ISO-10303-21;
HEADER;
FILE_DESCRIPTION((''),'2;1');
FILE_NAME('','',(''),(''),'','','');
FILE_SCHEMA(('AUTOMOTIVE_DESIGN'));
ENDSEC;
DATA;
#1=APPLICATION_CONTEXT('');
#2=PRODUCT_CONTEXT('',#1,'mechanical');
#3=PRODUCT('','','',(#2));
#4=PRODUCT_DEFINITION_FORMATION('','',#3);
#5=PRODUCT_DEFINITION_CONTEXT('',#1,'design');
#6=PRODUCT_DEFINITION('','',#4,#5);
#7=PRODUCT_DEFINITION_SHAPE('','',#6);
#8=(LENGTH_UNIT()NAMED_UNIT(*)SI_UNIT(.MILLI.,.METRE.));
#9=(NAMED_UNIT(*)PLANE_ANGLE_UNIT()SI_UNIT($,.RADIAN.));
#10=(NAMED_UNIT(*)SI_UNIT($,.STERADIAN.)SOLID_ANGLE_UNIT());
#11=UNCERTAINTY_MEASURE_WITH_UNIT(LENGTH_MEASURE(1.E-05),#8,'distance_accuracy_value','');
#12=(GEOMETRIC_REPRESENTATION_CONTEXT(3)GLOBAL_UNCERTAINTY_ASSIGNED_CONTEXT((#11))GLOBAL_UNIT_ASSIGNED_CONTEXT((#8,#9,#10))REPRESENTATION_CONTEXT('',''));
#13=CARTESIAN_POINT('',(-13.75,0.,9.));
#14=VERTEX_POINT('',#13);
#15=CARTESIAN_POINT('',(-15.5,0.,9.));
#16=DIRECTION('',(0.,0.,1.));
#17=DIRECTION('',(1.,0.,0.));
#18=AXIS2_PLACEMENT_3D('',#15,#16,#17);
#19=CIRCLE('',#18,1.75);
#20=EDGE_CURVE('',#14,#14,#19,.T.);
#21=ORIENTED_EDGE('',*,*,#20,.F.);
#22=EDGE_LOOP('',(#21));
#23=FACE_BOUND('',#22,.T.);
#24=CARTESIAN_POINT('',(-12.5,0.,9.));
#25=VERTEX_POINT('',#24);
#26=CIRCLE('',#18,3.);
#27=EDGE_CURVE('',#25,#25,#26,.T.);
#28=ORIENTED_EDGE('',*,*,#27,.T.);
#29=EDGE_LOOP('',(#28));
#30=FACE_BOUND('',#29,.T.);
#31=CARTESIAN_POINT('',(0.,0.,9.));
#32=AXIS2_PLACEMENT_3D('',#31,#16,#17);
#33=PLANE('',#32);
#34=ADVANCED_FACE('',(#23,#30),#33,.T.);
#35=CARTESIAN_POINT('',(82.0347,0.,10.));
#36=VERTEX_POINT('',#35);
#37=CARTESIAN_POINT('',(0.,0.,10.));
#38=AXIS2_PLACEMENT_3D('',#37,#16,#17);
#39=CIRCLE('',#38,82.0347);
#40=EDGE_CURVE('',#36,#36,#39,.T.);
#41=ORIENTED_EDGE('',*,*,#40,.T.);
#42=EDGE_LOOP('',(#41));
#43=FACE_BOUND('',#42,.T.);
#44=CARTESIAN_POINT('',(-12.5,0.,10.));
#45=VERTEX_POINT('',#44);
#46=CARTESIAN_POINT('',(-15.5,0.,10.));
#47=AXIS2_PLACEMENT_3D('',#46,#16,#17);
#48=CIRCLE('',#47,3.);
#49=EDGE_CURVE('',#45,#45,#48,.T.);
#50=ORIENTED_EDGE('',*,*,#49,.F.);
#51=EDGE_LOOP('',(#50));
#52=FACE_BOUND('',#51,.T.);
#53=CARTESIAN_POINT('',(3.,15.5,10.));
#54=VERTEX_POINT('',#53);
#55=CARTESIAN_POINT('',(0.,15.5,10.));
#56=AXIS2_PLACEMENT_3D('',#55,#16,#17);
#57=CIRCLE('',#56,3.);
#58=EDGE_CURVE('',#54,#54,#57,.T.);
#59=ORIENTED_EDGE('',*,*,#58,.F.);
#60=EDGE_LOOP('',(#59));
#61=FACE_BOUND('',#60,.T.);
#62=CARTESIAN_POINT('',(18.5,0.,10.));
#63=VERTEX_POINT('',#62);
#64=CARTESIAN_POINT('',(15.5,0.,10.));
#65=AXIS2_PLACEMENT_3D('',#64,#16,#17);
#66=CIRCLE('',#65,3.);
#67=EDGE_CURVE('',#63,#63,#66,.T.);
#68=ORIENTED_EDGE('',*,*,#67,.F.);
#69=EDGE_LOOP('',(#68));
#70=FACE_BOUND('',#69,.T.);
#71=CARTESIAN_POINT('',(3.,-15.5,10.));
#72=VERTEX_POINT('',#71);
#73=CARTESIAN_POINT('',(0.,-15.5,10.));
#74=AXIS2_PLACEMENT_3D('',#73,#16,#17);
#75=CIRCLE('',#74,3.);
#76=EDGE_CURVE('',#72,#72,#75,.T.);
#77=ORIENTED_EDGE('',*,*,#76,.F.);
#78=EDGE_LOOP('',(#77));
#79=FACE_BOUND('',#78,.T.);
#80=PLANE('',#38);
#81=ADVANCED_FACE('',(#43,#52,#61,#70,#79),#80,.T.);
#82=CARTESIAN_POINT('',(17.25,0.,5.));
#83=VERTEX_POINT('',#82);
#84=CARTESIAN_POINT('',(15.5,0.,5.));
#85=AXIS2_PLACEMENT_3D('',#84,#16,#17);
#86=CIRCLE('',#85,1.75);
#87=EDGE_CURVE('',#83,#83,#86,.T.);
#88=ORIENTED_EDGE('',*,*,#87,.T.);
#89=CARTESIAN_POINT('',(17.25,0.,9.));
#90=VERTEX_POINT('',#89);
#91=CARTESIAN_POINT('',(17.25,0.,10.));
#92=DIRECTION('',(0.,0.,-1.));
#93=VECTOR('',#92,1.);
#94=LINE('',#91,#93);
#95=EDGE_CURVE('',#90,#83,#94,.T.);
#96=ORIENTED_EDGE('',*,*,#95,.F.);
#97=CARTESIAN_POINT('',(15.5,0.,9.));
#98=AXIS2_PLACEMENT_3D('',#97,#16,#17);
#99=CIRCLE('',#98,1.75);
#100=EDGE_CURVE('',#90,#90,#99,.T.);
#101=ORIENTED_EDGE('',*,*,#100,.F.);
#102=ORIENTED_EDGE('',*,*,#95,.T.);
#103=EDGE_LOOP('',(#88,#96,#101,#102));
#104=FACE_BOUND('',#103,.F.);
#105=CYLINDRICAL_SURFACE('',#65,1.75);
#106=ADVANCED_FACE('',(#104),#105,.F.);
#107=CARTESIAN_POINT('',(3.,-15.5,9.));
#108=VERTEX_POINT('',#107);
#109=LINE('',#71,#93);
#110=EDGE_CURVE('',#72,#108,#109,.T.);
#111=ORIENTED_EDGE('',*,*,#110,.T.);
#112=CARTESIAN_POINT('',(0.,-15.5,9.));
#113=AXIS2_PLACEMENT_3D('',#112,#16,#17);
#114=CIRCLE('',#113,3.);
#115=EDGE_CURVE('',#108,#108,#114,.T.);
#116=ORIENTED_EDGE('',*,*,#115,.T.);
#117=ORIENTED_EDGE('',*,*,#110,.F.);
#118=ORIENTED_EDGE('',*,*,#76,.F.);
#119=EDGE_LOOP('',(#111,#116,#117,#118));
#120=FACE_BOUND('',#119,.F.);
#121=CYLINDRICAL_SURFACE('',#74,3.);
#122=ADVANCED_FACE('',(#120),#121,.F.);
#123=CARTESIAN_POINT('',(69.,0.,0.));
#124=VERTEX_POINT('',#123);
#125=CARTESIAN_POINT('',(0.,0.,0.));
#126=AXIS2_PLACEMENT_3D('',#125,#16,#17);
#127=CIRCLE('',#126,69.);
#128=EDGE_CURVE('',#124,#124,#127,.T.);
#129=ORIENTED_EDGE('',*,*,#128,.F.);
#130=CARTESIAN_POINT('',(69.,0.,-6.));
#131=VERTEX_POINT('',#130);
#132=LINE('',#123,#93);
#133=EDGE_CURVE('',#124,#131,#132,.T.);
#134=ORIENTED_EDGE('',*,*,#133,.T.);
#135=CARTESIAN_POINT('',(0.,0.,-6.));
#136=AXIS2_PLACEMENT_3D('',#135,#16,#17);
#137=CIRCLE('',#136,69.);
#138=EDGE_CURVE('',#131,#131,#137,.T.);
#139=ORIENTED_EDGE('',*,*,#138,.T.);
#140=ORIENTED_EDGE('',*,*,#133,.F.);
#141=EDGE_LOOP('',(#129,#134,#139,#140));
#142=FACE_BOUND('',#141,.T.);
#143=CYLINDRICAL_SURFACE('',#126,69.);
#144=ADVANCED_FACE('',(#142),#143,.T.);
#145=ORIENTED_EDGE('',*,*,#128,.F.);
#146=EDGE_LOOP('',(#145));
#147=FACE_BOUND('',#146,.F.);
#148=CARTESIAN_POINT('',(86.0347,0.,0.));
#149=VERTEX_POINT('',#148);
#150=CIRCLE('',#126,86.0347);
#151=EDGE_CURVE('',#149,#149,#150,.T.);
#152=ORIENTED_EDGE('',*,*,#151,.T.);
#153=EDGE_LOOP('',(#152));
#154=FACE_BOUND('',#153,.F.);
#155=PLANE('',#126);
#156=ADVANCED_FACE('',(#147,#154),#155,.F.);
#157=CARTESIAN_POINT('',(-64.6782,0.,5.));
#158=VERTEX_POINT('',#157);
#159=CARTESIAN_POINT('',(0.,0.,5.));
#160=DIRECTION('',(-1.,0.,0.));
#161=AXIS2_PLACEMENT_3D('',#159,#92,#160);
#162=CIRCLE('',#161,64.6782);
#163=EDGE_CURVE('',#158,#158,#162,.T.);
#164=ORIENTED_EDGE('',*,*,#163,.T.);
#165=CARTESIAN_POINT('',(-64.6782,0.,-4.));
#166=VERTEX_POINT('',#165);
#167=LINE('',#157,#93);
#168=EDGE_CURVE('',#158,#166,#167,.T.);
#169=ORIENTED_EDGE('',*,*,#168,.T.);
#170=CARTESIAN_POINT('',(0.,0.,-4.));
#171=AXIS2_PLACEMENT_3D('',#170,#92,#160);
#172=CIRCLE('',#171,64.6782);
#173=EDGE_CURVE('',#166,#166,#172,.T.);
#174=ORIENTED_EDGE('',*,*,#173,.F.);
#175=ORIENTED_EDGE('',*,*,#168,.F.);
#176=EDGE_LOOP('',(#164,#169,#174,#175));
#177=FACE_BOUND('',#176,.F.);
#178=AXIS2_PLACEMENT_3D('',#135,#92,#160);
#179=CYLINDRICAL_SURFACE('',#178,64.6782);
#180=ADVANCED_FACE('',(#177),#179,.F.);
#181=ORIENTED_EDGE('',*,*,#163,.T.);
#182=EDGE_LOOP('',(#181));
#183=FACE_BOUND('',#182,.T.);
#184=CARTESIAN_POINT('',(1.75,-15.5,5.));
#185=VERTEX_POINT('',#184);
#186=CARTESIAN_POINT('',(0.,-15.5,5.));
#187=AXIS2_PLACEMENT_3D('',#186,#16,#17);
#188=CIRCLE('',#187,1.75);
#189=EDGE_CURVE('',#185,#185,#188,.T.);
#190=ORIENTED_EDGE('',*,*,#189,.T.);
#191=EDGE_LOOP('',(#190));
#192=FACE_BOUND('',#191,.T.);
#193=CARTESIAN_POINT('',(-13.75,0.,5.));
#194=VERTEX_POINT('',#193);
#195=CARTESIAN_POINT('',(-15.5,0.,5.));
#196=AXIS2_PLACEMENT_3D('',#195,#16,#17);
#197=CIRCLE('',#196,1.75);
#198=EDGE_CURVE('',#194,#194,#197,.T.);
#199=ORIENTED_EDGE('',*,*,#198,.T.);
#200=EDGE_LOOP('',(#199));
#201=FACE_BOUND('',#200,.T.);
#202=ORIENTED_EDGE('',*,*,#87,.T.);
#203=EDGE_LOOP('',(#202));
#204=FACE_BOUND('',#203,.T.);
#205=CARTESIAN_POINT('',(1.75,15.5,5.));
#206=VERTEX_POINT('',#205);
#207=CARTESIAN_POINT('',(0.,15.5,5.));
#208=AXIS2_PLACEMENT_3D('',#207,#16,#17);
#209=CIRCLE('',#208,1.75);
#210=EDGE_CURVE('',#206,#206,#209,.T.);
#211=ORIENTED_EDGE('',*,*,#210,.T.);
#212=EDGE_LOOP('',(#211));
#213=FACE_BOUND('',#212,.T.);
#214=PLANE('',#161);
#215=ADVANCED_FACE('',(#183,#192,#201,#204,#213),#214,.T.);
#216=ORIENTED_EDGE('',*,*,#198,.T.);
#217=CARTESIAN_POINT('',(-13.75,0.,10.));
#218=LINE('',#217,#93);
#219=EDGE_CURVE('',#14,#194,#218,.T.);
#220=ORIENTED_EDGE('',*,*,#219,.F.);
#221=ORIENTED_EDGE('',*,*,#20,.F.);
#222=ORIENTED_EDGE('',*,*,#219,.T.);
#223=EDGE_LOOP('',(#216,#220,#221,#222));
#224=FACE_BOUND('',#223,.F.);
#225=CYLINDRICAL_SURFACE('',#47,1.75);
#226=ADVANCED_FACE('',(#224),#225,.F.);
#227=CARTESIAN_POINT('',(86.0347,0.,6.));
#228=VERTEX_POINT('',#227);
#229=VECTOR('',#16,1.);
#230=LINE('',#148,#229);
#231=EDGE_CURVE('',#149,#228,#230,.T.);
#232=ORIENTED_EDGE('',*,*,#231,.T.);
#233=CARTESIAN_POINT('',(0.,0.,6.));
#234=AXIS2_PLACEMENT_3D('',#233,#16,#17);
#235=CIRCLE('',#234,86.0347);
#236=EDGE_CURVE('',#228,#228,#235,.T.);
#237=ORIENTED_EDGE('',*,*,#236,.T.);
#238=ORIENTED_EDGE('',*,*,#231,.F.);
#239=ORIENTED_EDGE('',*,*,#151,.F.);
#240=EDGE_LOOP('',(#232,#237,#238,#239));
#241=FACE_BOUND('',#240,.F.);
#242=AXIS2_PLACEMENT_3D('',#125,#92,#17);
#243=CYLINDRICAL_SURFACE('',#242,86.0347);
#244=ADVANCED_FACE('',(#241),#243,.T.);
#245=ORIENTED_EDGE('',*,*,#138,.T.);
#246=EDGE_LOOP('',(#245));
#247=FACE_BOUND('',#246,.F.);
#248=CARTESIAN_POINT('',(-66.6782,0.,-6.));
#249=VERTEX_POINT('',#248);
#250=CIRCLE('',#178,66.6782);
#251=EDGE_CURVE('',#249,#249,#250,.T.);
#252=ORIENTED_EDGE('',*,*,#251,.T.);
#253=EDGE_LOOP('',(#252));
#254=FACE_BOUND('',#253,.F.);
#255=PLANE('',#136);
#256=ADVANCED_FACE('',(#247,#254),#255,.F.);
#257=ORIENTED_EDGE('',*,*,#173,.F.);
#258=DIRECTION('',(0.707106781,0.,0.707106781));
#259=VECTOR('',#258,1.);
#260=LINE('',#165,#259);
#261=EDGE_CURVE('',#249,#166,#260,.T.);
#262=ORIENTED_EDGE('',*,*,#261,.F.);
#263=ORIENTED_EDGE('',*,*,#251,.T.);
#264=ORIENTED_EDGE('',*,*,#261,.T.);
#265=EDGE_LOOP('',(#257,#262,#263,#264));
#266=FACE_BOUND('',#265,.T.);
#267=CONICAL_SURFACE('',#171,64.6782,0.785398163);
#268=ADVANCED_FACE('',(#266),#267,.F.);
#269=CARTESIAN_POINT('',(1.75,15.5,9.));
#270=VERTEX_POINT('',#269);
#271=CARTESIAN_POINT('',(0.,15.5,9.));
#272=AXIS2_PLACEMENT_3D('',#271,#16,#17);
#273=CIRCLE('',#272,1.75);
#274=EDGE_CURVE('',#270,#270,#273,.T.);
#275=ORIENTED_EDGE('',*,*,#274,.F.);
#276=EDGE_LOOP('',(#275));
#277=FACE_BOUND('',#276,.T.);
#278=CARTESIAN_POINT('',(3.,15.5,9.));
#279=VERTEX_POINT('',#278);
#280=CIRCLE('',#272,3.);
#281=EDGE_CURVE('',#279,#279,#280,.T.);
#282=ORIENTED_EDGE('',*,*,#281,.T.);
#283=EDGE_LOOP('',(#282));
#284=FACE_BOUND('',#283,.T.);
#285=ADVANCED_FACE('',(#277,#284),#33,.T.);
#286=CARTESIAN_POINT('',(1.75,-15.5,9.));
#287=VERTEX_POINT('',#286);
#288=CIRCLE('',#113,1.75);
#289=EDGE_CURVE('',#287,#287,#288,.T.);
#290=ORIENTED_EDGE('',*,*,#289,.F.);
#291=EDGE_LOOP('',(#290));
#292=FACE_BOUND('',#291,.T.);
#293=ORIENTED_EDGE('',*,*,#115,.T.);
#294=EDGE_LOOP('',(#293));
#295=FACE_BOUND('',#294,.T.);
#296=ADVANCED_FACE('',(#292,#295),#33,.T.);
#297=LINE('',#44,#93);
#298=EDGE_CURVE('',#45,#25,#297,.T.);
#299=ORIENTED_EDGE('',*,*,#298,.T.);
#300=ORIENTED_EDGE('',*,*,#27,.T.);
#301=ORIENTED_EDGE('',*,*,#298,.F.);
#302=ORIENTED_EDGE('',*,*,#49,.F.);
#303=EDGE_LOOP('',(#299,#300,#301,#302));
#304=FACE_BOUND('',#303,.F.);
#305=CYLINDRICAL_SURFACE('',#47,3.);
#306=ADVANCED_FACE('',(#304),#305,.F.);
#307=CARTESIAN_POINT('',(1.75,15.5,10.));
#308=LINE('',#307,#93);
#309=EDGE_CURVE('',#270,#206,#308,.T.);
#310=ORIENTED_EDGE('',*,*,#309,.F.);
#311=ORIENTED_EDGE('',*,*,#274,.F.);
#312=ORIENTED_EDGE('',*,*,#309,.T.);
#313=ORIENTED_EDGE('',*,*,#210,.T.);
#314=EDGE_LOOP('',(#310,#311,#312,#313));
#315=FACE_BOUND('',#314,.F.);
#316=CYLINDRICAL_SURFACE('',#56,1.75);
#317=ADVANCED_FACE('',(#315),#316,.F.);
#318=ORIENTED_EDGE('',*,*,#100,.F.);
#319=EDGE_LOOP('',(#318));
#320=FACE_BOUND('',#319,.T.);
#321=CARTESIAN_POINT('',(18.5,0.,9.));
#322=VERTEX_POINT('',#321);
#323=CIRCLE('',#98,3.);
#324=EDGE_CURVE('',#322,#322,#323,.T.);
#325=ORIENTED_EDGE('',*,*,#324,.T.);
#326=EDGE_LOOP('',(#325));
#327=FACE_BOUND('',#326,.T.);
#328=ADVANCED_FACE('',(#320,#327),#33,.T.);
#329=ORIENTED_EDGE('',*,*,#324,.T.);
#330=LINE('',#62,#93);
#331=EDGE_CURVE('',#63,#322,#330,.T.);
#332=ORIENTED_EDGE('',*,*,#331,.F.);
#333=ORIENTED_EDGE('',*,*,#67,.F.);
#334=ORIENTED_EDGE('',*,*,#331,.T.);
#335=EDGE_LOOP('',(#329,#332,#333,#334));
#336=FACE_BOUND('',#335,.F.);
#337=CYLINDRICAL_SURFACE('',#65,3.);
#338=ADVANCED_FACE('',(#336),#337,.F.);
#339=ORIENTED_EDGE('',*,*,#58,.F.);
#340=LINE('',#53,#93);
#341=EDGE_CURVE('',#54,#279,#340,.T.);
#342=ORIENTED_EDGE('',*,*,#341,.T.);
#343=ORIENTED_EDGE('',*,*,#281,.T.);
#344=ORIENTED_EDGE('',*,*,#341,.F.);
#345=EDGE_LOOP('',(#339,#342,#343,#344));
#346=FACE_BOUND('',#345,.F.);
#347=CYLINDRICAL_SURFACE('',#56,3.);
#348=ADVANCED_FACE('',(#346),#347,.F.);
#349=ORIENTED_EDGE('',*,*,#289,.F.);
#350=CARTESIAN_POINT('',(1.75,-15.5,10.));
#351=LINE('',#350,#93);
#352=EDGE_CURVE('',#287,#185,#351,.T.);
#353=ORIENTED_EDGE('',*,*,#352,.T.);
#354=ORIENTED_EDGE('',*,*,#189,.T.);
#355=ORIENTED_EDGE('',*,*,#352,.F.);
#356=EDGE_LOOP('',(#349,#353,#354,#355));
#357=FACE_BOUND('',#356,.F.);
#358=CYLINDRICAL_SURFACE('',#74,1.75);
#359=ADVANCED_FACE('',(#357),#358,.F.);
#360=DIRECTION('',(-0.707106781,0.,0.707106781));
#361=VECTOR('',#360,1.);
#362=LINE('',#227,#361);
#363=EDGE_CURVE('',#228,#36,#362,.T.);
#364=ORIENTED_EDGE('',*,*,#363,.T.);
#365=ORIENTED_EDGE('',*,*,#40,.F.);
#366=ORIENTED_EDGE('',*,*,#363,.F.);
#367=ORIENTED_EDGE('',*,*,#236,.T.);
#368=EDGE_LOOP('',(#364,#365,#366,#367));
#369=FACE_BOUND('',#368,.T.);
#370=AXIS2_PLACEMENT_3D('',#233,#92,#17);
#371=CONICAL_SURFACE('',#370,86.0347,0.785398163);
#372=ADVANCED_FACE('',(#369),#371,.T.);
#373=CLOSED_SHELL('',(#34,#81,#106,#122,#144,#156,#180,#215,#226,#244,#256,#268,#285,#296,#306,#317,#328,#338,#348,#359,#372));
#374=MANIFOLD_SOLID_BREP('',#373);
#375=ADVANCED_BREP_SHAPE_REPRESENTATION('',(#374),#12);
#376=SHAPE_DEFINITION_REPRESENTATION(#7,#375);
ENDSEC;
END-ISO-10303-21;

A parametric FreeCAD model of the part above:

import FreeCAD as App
import Part
import Sketcher
Q = App.Units.Quantity


def edges_at(feature, points):
    """Names of the edges that pass closest to the given points."""
    edges = feature.Shape.Edges
    near = lambda p: min(range(len(edges)), key=lambda i: edges[i].distToShape(Part.Vertex(*p))[0])
    return sorted({f"Edge{near(p) + 1}" for p in points})

doc = App.newDocument("Part")
body = doc.addObject("PartDesign::Body", "Body")

# Sketch on XY plane
sketch1 = body.newObject("Sketcher::SketchObject", "Sketch")
sketch1.AttachmentSupport = (doc.getObject("XY_Plane"), [""])
sketch1.MapMode = "FlatFace"
sketch1.addGeometry(Part.Circle(App.Vector(0, 0, 0), App.Vector(0, 0, 1), 69), False)
sketch1.addConstraint(Sketcher.Constraint("Coincident", 0, 3, -1, 1))
sketch1.addConstraint(Sketcher.Constraint("Diameter", 0, Q("138 mm")))
pad1 = body.newObject("PartDesign::Pad", "Pad")
pad1.Profile = sketch1
pad1.Length = 6
pad1.Reversed = True

# Sketch on XY plane
sketch2 = body.newObject("Sketcher::SketchObject", "Sketch001")
sketch2.AttachmentSupport = (doc.getObject("XY_Plane"), [""])
sketch2.MapMode = "FlatFace"
sketch2.addGeometry(Part.Circle(App.Vector(0, 0, 0), App.Vector(0, 0, 1), 86), False)
sketch2.addConstraint(Sketcher.Constraint("Coincident", 0, 3, -1, 1))
sketch2.addConstraint(Sketcher.Constraint("Diameter", 0, Q("172.0694 mm")))
pad2 = body.newObject("PartDesign::Pad", "Pad001")
pad2.Profile = sketch2
pad2.Length = 10

# Sketch on XY plane
sketch3 = body.newObject("Sketcher::SketchObject", "Sketch002")
sketch3.AttachmentSupport = (doc.getObject("XY_Plane"), [""])
sketch3.MapMode = "FlatFace"
sketch3.AttachmentOffset = App.Placement(App.Vector(0, 0, 10), App.Rotation())
sketch3.addGeometry(Part.Circle(App.Vector(0, 15.5, 0), App.Vector(0, 0, 1), 1.8), False)
sketch3.addGeometry(Part.Circle(App.Vector(-15.5, 0, 0), App.Vector(0, 0, 1), 1.8), False)
sketch3.addGeometry(Part.Circle(App.Vector(0, -15.5, 0), App.Vector(0, 0, 1), 1.8), False)
sketch3.addGeometry(Part.Circle(App.Vector(15.5, 0, 0), App.Vector(0, 0, 1), 1.8), False)
sketch3.addConstraint(Sketcher.Constraint("Equal", 0, 1))
sketch3.addConstraint(Sketcher.Constraint("Equal", 1, 2))
sketch3.addConstraint(Sketcher.Constraint("Equal", 2, 3))
sketch3.addConstraint(Sketcher.Constraint("Symmetric", 0, 3, 2, 3, -1, 1))
sketch3.addConstraint(Sketcher.Constraint("Symmetric", 1, 3, 3, 3, -1, 1))
sketch3.addConstraint(Sketcher.Constraint("PointOnObject", 0, 3, -2))
sketch3.addConstraint(Sketcher.Constraint("PointOnObject", 1, 3, -1))
sketch3.addConstraint(Sketcher.Constraint("Diameter", 0, Q("3.5 mm")))
sketch3.addConstraint(Sketcher.Constraint("DistanceY", 2, 3, 0, 3, Q("31 mm")))
sketch3.addConstraint(Sketcher.Constraint("DistanceX", 1, 3, 3, 3, Q("31 mm")))
pocket1 = body.newObject("PartDesign::Pocket", "Pocket")
pocket1.Profile = sketch3
pocket1.Type = "ThroughAll"

# Sketch on XY plane
sketch4 = body.newObject("Sketcher::SketchObject", "Sketch003")
sketch4.AttachmentSupport = (doc.getObject("XY_Plane"), [""])
sketch4.MapMode = "FlatFace"
sketch4.AttachmentOffset = App.Placement(App.Vector(0, 0, 10), App.Rotation())
sketch4.addGeometry(Part.Circle(App.Vector(15.5, 0, 0), App.Vector(0, 0, 1), 3), False)
sketch4.addGeometry(Part.Circle(App.Vector(-15.5, 0, 0), App.Vector(0, 0, 1), 3), False)
sketch4.addGeometry(Part.Circle(App.Vector(0, 15.5, 0), App.Vector(0, 0, 1), 3), False)
sketch4.addGeometry(Part.Circle(App.Vector(0, -15.5, 0), App.Vector(0, 0, 1), 3), False)
sketch4.addGeometry(Part.Circle(App.Vector(0, -15.5, 0), App.Vector(0, 0, 1), 1.8), False)
sketch4.addConstraint(Sketcher.Constraint("Coincident", 4, 3, 3, 3))
sketch4.addConstraint(Sketcher.Constraint("Equal", 0, 1))
sketch4.addConstraint(Sketcher.Constraint("Equal", 1, 2))
sketch4.addConstraint(Sketcher.Constraint("Equal", 2, 3))
sketch4.addConstraint(Sketcher.Constraint("Symmetric", 0, 3, 1, 3, -1, 1))
sketch4.addConstraint(Sketcher.Constraint("Symmetric", 2, 3, 3, 3, -1, 1))
sketch4.addConstraint(Sketcher.Constraint("PointOnObject", 0, 3, -1))
sketch4.addConstraint(Sketcher.Constraint("PointOnObject", 2, 3, -2))
sketch4.addConstraint(Sketcher.Constraint("Diameter", 0, Q("6 mm")))
sketch4.addConstraint(Sketcher.Constraint("Diameter", 4, Q("3.5 mm")))
sketch4.addConstraint(Sketcher.Constraint("DistanceX", 1, 3, 0, 3, Q("31 mm")))
sketch4.addConstraint(Sketcher.Constraint("DistanceY", 3, 3, 2, 3, Q("31 mm")))
pocket2 = body.newObject("PartDesign::Pocket", "Pocket001")
pocket2.Profile = sketch4
pocket2.Length = 1

# Sketch on XY plane
sketch5 = body.newObject("Sketcher::SketchObject", "Sketch004")
sketch5.AttachmentSupport = (doc.getObject("XY_Plane"), [""])
sketch5.MapMode = "FlatFace"
sketch5.AttachmentOffset = App.Placement(App.Vector(0, 0, -6), App.Rotation())
sketch5.addGeometry(Part.Circle(App.Vector(0, 0, 0), App.Vector(0, 0, 1), 64.7), False)
sketch5.addGeometry(Part.Circle(App.Vector(0, -15.5, 0), App.Vector(0, 0, 1), 1.8), False)
sketch5.addGeometry(Part.Circle(App.Vector(15.5, 0, 0), App.Vector(0, 0, 1), 1.8), False)
sketch5.addGeometry(Part.Circle(App.Vector(-15.5, 0, 0), App.Vector(0, 0, 1), 1.8), False)
sketch5.addGeometry(Part.Circle(App.Vector(0, 15.5, 0), App.Vector(0, 0, 1), 1.8), False)
sketch5.addConstraint(Sketcher.Constraint("Coincident", 0, 3, -1, 1))
sketch5.addConstraint(Sketcher.Constraint("Equal", 1, 2))
sketch5.addConstraint(Sketcher.Constraint("Equal", 2, 3))
sketch5.addConstraint(Sketcher.Constraint("Equal", 3, 4))
sketch5.addConstraint(Sketcher.Constraint("Symmetric", 2, 3, 3, 3, -1, 1))
sketch5.addConstraint(Sketcher.Constraint("Symmetric", 1, 3, 4, 3, -1, 1))
sketch5.addConstraint(Sketcher.Constraint("PointOnObject", 1, 3, -2))
sketch5.addConstraint(Sketcher.Constraint("PointOnObject", 2, 3, -1))
sketch5.addConstraint(Sketcher.Constraint("Diameter", 1, Q("3.5 mm")))
sketch5.addConstraint(Sketcher.Constraint("DistanceX", 3, 3, 2, 3, Q("31 mm")))
sketch5.addConstraint(Sketcher.Constraint("DistanceY", 1, 3, 4, 3, Q("31 mm")))
sketch5.addConstraint(Sketcher.Constraint("Diameter", 0, Q("129.3564 mm")))
pocket3 = body.newObject("PartDesign::Pocket", "Pocket002")
pocket3.Profile = sketch5
pocket3.Length = 8
pocket3.Reversed = True
doc.recompute()

chamfer = body.newObject("PartDesign::Chamfer", "Chamfer")
chamfer.Base = (pocket3, edges_at(pocket3, [(-86.035, 0, 10)]))
chamfer.Size = 4
doc.recompute()

chamfer2 = body.newObject("PartDesign::Chamfer", "Chamfer001")
chamfer2.Base = (chamfer, edges_at(chamfer, [(64.678, 0, -6)]))
chamfer2.Size = 2

# Sketch on XY plane
sketch6 = body.newObject("Sketcher::SketchObject", "Sketch005")
sketch6.AttachmentSupport = (doc.getObject("XY_Plane"), [""])
sketch6.MapMode = "FlatFace"
sketch6.AttachmentOffset = App.Placement(App.Vector(0, 0, 2), App.Rotation())
sketch6.addGeometry(Part.Circle(App.Vector(0, 0, 0), App.Vector(0, 0, 1), 64.7), False)
sketch6.addGeometry(Part.Circle(App.Vector(0, -15.5, 0), App.Vector(0, 0, 1), 1.8), False)
sketch6.addGeometry(Part.Circle(App.Vector(15.5, 0, 0), App.Vector(0, 0, 1), 1.8), False)
sketch6.addGeometry(Part.Circle(App.Vector(-15.5, 0, 0), App.Vector(0, 0, 1), 1.8), False)
sketch6.addGeometry(Part.Circle(App.Vector(0, 15.5, 0), App.Vector(0, 0, 1), 1.8), False)
sketch6.addConstraint(Sketcher.Constraint("Coincident", 0, 3, -1, 1))
sketch6.addConstraint(Sketcher.Constraint("Equal", 1, 2))
sketch6.addConstraint(Sketcher.Constraint("Equal", 2, 3))
sketch6.addConstraint(Sketcher.Constraint("Equal", 3, 4))
sketch6.addConstraint(Sketcher.Constraint("Symmetric", 2, 3, 3, 3, -1, 1))
sketch6.addConstraint(Sketcher.Constraint("Symmetric", 1, 3, 4, 3, -1, 1))
sketch6.addConstraint(Sketcher.Constraint("PointOnObject", 1, 3, -2))
sketch6.addConstraint(Sketcher.Constraint("PointOnObject", 2, 3, -1))
sketch6.addConstraint(Sketcher.Constraint("Diameter", 1, Q("3.5 mm")))
sketch6.addConstraint(Sketcher.Constraint("DistanceX", 3, 3, 2, 3, Q("31 mm")))
sketch6.addConstraint(Sketcher.Constraint("DistanceY", 1, 3, 4, 3, Q("31 mm")))
sketch6.addConstraint(Sketcher.Constraint("Diameter", 0, Q("129.3564 mm")))
pocket4 = body.newObject("PartDesign::Pocket", "Pocket003")
pocket4.Profile = sketch6
pocket4.Length = 3
pocket4.Reversed = True

doc.recompute()
